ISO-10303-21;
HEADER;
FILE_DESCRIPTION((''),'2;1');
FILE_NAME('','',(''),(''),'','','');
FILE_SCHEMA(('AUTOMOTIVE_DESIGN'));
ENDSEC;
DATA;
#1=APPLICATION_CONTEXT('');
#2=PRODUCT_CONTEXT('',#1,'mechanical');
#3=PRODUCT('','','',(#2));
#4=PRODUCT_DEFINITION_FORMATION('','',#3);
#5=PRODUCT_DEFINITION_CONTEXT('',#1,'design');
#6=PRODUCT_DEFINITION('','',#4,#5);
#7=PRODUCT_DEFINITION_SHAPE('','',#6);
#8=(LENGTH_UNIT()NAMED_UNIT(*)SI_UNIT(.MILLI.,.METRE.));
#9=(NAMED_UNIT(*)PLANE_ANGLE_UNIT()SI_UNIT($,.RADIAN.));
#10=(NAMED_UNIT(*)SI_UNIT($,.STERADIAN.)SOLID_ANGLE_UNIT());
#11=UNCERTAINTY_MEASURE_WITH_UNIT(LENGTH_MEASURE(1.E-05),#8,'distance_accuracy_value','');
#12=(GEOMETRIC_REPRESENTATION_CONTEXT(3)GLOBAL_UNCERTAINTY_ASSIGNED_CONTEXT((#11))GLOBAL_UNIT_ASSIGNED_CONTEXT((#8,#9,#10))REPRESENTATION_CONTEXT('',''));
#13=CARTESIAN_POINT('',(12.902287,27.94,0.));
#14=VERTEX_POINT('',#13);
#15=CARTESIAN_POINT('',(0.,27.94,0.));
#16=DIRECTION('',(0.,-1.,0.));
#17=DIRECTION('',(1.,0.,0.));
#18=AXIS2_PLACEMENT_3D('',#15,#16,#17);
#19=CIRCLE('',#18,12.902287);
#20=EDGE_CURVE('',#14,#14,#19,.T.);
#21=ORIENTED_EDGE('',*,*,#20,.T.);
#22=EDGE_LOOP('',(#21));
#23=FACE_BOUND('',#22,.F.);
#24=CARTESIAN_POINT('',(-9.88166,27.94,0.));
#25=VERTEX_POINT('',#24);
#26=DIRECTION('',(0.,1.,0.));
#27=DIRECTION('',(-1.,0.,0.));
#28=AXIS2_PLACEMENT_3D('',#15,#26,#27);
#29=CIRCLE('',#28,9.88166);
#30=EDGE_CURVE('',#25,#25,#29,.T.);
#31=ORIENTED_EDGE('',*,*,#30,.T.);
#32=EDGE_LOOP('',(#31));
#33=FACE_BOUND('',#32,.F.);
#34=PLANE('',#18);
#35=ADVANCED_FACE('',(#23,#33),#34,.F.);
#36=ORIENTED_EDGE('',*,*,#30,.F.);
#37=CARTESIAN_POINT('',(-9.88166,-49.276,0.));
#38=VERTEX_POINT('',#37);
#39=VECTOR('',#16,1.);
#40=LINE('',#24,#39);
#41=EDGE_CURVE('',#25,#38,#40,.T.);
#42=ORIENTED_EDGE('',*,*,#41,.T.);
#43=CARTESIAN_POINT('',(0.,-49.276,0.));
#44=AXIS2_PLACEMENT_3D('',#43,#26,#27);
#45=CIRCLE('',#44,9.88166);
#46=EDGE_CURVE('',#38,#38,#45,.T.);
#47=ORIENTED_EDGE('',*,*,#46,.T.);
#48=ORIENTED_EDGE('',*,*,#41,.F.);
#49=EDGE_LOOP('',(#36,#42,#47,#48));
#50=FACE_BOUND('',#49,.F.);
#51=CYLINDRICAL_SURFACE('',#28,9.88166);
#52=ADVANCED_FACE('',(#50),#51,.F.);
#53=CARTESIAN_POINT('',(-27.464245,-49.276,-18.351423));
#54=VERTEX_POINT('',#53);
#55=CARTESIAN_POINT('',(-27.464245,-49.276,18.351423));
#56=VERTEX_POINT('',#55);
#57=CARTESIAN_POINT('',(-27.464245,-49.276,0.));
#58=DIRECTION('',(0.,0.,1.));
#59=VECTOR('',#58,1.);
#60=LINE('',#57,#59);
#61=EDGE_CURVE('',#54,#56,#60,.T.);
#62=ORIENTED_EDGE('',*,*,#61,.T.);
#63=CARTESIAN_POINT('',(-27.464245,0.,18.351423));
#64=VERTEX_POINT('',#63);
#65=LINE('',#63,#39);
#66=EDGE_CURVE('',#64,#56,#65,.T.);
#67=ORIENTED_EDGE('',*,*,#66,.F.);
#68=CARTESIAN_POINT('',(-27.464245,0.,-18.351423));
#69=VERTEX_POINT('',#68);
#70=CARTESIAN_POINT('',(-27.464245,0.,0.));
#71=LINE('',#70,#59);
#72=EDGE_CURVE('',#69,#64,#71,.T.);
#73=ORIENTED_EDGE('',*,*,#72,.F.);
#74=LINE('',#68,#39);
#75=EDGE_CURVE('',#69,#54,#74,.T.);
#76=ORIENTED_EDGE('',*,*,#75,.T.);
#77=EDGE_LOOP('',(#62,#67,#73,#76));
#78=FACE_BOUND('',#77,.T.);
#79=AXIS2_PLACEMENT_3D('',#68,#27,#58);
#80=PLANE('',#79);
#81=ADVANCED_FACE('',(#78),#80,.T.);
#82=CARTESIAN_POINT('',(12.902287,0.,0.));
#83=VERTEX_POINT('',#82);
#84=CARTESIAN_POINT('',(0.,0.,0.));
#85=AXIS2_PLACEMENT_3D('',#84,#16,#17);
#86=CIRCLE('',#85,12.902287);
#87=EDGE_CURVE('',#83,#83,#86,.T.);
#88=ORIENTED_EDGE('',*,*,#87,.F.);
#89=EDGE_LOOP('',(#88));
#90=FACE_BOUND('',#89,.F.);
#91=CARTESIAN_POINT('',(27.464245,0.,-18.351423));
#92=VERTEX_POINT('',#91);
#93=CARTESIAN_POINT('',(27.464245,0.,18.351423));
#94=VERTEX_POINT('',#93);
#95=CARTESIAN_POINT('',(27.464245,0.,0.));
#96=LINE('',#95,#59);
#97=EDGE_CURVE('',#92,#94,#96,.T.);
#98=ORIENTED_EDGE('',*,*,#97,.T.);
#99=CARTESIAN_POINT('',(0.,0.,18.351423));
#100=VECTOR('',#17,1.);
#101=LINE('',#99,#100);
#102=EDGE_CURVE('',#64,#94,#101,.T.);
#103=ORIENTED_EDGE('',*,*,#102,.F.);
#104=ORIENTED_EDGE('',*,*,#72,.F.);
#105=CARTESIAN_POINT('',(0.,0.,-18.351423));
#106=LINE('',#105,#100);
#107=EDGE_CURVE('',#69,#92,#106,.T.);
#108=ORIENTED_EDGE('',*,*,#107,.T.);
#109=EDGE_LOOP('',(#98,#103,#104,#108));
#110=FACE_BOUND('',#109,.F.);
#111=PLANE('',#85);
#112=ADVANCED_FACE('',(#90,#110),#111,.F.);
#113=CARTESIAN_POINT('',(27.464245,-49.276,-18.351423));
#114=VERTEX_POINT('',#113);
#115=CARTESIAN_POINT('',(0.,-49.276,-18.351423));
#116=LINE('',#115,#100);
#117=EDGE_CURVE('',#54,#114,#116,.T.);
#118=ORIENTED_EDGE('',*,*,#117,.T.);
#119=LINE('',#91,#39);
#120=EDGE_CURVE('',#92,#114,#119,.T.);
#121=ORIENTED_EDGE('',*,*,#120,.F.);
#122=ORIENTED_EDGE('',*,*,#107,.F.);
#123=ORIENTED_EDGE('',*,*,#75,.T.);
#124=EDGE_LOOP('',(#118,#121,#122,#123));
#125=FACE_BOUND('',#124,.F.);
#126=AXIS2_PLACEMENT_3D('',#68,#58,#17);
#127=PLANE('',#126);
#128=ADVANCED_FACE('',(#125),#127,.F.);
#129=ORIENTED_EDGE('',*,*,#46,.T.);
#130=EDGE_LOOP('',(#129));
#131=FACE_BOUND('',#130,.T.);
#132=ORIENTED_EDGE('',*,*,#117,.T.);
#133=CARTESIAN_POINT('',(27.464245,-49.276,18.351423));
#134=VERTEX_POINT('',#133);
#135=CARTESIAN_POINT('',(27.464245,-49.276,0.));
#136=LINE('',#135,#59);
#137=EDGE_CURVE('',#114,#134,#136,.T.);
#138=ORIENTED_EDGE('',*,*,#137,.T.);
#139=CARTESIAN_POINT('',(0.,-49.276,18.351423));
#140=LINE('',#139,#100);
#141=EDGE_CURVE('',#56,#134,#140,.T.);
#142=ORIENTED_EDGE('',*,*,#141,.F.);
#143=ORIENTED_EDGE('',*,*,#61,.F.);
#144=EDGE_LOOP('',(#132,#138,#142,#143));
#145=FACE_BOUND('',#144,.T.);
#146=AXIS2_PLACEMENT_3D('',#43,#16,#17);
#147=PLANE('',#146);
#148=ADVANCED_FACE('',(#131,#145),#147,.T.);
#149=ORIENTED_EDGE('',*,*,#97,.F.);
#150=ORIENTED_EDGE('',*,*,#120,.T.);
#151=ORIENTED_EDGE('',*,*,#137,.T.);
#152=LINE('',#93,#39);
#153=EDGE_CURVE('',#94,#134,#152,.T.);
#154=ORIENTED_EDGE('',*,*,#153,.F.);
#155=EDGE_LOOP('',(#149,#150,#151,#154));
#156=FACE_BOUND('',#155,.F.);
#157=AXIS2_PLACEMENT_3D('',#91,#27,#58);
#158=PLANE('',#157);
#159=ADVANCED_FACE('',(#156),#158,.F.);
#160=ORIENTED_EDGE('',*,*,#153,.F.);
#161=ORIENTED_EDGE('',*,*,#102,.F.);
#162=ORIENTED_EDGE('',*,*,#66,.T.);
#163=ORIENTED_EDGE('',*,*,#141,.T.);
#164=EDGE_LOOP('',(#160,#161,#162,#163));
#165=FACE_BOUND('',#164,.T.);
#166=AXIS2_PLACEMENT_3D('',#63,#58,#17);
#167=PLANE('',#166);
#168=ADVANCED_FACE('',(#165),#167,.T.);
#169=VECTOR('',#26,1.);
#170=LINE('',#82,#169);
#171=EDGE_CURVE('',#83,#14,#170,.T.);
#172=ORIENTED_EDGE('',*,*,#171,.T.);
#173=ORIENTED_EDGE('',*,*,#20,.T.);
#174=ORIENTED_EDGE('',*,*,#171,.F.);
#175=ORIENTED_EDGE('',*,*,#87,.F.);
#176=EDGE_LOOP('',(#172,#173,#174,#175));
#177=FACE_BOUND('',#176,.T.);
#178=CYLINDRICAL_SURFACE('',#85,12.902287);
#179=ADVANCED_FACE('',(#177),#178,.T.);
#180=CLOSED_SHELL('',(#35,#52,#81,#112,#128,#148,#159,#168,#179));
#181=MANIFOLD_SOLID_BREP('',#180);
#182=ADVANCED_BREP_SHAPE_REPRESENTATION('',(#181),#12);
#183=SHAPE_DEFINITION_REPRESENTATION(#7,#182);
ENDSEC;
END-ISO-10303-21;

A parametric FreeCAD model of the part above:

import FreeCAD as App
import Part
import Sketcher

V = App.Vector
Q = App.Units.Quantity

doc = App.newDocument("Part")
body = doc.addObject("PartDesign::Body", "Body")

# Sketch on XZ plane
sketch1 = body.newObject("Sketcher::SketchObject", "Sketch")
sketch1.AttachmentSupport = (doc.getObject("XZ_Plane"), [""])
sketch1.MapMode = "FlatFace"
sketch1.addGeometry(Part.LineSegment(V(-27, 18, 0), V(-27, -18, 0)), False)
sketch1.addGeometry(Part.LineSegment(V(-27, -18, 0), V(27, -18, 0)), False)
sketch1.addGeometry(Part.LineSegment(V(27, -18, 0), V(27, 18, 0)), False)
sketch1.addGeometry(Part.LineSegment(V(27, 18, 0), V(-27, 18, 0)), False)
sketch1.addConstraint(Sketcher.Constraint("Coincident", 0, 2, 1, 1))
sketch1.addConstraint(Sketcher.Constraint("Coincident", 1, 2, 2, 1))
sketch1.addConstraint(Sketcher.Constraint("Coincident", 2, 2, 3, 1))
sketch1.addConstraint(Sketcher.Constraint("Coincident", 3, 2, 0, 1))
sketch1.addConstraint(Sketcher.Constraint("Vertical", 0))
sketch1.addConstraint(Sketcher.Constraint("Horizontal", 1))
sketch1.addConstraint(Sketcher.Constraint("Vertical", 2))
sketch1.addConstraint(Sketcher.Constraint("Horizontal", 3))
sketch1.addConstraint(Sketcher.Constraint("Symmetric", 0, 2, 2, 2, -1, 1))
sketch1.addConstraint(Sketcher.Constraint("DistanceX", 1, 1, 1, 2, 54.92849))
sketch1.addConstraint(Sketcher.Constraint("DistanceY", 0, 2, 0, 1, 36.702846))
pad1 = body.newObject("PartDesign::Pad", "Pad")
pad1.Profile = sketch1
pad1.Length = Q("1.94 in")

# Sketch on XZ plane
sketch2 = body.newObject("Sketcher::SketchObject", "Sketch001")
sketch2.AttachmentSupport = (doc.getObject("XZ_Plane"), [""])
sketch2.MapMode = "FlatFace"
sketch2.addGeometry(Part.Circle(V(0, 0, 0), V(0, 0, 1), 13), False)
sketch2.addConstraint(Sketcher.Constraint("Coincident", 0, 3, -1, 1))
sketch2.addConstraint(Sketcher.Constraint("Diameter", 0, 25.804574))
pad2 = body.newObject("PartDesign::Pad", "Pad001")
pad2.Profile = sketch2
pad2.Length = Q("1.1 in")
pad2.Reversed = True

# Sketch on XZ plane
sketch3 = body.newObject("Sketcher::SketchObject", "Sketch002")
sketch3.AttachmentSupport = (doc.getObject("XZ_Plane"), [""])
sketch3.MapMode = "FlatFace"
sketch3.AttachmentOffset = App.Placement(V(0, 0, -1.1 * 25.4), App.Rotation())
sketch3.addGeometry(Part.Circle(V(0, 0, 0), V(0, 0, 1), 10), False)
sketch3.addConstraint(Sketcher.Constraint("Coincident", 0, 3, -1, 1))
sketch3.addConstraint(Sketcher.Constraint("Diameter", 0, 19.76332))
pocket1 = body.newObject("PartDesign::Pocket", "Pocket")
pocket1.Profile = sketch3
pocket1.Length = Q("3.63 in")
pocket1.Reversed = True

doc.recompute()
